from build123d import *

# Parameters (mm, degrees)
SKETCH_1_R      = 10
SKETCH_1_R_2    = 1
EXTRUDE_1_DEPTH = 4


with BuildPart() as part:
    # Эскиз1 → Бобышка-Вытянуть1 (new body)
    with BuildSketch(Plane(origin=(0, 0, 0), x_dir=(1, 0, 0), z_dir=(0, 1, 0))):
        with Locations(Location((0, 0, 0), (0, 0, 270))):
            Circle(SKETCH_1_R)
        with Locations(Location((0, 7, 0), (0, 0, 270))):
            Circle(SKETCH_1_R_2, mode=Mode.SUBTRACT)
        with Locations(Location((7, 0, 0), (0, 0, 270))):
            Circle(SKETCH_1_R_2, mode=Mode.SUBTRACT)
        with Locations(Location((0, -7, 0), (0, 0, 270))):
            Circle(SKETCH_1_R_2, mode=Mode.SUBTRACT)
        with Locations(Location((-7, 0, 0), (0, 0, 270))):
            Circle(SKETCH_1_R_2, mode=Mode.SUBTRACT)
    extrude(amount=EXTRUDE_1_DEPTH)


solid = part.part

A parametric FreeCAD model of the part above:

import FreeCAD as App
import Part
import Sketcher

doc = App.newDocument("Part")
body = doc.addObject("PartDesign::Body", "Body")

sketch1 = body.newObject("Sketcher::SketchObject", "Sketch")
sketch1.AttachmentSupport = (doc.getObject("XZ_Plane"), [""])
sketch1.MapMode = "FlatFace"
sketch1.addGeometry([
    Part.Circle(App.Vector(0, 0, 0), App.Vector(0, 0, 1), 10),
    Part.Circle(App.Vector(0, -7, 0), App.Vector(0, 0, 1), 1),
    Part.Circle(App.Vector(-7, 0, 0), App.Vector(0, 0, 1), 1),
    Part.Circle(App.Vector(7, 0, 0), App.Vector(0, 0, 1), 1),
    Part.Circle(App.Vector(0, 7, 0), App.Vector(0, 0, 1), 1),
], False)
sketch1.addConstraint([
    Sketcher.Constraint("Coincident", 0, 3, -1, 1),
    Sketcher.Constraint("Equal", 1, 2),
    Sketcher.Constraint("Equal", 2, 3),
    Sketcher.Constraint("Equal", 3, 4),
    Sketcher.Constraint("Symmetric", 2, 3, 3, 3, -1, 1),
    Sketcher.Constraint("Symmetric", 1, 3, 4, 3, -1, 1),
    Sketcher.Constraint("PointOnObject", 1, 3, -2),
    Sketcher.Constraint("PointOnObject", 2, 3, -1),
    Sketcher.Constraint("Diameter", 0, 20.0),
    Sketcher.Constraint("Diameter", 1, 2.0),
    Sketcher.Constraint("DistanceY", 1, 3, -1, 1, 7.0),
    Sketcher.Constraint("DistanceX", 2, 3, -1, 1, 7.0),
])
pad1 = body.newObject("PartDesign::Pad", "Pad")
pad1.Profile = sketch1
pad1.Length = 4
pad1.Reversed = True

doc.recompute()
